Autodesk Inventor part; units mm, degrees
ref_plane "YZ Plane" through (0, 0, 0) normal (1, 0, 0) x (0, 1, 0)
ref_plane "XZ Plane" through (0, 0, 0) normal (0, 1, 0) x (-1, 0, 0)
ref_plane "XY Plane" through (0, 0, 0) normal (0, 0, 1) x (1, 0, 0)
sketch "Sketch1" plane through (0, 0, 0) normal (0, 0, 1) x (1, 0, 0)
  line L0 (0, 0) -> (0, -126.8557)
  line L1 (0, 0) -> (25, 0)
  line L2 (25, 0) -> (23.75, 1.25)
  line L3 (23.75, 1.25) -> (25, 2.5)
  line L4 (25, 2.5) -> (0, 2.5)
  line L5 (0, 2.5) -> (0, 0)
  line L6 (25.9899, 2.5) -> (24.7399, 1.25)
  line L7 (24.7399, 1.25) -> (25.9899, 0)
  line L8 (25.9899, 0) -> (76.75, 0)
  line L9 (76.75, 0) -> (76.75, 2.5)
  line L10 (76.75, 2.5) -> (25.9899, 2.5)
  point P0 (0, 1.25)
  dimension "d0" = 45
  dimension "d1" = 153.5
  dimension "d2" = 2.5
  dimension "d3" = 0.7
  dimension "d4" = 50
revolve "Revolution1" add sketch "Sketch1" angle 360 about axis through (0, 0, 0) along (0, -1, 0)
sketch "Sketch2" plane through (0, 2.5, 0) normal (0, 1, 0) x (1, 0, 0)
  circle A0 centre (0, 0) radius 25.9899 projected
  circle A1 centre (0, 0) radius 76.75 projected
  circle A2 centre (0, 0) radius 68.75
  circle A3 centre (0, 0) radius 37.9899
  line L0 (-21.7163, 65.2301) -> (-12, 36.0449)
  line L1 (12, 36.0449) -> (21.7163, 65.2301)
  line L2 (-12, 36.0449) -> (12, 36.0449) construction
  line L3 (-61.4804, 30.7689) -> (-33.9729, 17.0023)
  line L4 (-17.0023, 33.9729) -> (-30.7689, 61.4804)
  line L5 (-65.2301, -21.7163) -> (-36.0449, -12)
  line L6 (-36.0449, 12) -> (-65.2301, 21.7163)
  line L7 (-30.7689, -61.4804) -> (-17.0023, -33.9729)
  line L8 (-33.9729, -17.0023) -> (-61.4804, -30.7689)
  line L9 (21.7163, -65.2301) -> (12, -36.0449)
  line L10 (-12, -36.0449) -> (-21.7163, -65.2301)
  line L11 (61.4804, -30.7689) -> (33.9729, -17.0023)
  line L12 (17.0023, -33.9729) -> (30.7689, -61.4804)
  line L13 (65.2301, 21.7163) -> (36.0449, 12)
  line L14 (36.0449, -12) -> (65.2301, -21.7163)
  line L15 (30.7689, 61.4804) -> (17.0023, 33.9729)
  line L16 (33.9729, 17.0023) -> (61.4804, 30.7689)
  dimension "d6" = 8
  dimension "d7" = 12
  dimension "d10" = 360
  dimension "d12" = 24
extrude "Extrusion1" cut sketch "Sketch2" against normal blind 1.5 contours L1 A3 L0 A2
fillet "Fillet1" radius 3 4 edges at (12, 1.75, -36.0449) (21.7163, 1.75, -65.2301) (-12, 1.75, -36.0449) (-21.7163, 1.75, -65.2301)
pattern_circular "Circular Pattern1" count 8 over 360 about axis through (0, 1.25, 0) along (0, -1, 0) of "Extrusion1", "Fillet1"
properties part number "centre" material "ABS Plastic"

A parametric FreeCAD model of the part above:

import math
import FreeCAD as App
import Part
import Sketcher

V = App.Vector


def edges_at(feature, points):
    """Names of the edges that pass closest to the given points."""
    edges = feature.Shape.Edges
    near = lambda p: min(range(len(edges)), key=lambda i: edges[i].distToShape(Part.Vertex(*p))[0])
    return sorted({f"Edge{near(p) + 1}" for p in points})


def add_polygon(sketch, points):
    """Adds a closed chain of lines whose ends are joined by coincident constraints."""
    first, n = sketch.GeometryCount, len(points)
    for a, b in zip(points, points[1:] + points[:1]):
        sketch.addGeometry(Part.LineSegment(App.Vector(*a, 0), App.Vector(*b, 0)), False)
    for i in range(n):
        sketch.addConstraint(Sketcher.Constraint("Coincident", first + i, 2, first + (i + 1) % n, 1))

doc = App.newDocument("Part")
body = doc.addObject("PartDesign::Body", "Body")
body.AllowCompound = True

# Sketch on XY plane
sketch1 = body.newObject("Sketcher::SketchObject", "Sketch")
sketch1.AttachmentSupport = (doc.getObject("XY_Plane"), [""])
sketch1.MapMode = "FlatFace"
add_polygon(sketch1, [(0, 2.5), (0, 0), (25, 0), (23.8, 1.2), (25, 2.5)])  # lines 0-4
add_polygon(sketch1, [(76.8, 2.5), (26, 2.5), (24.7, 1.2), (26, 0), (76.8, 0)])  # lines 5-9
sketch1.addConstraint([
    Sketcher.Constraint("Vertical", 0),
    Sketcher.Constraint("Horizontal", 1),
    Sketcher.Constraint("Horizontal", 4),
    Sketcher.Constraint("Horizontal", 5),
    Sketcher.Constraint("Horizontal", 8),
    Sketcher.Constraint("Vertical", 9),
    Sketcher.Constraint("Coincident", 0, 2, -1, 1),
    Sketcher.Constraint("PointOnObject", 7, 2, -1),
    Sketcher.Constraint("Perpendicular", 2, 3),
    Sketcher.Constraint("Parallel", 3, 6),
    Sketcher.Constraint("Perpendicular", 6, 7),
    Sketcher.Constraint("Horizontal", 4, 2, 5, 2),
    Sketcher.Constraint("Horizontal", 2, 2, 6, 2),
    Sketcher.Constraint("Vertical", 1, 2, 3, 2),
    Sketcher.Constraint("Equal", 2, 3),
    Sketcher.Constraint("DistanceY", 0, 2, 0, 1, 2.5),
    Sketcher.Constraint("DistanceX", 1, 1, 1, 2, 25.0),
    Sketcher.Constraint("DistanceX", 5, 2, 5, 1, 50.76),
    Sketcher.Constraint("DistanceX", -1, 1, 5, 2, 25.99),
])
revolution = body.newObject("PartDesign::Revolution", "Revolution")
revolution.Profile = sketch1
revolution.ReferenceAxis = (sketch1, ["V_Axis"])
revolution.Angle = 360

# Sketch on XZ plane
sketch2 = body.newObject("Sketcher::SketchObject", "Sketch001")
sketch2.AttachmentSupport = (doc.getObject("XZ_Plane"), [""])
sketch2.MapMode = "FlatFace"
sketch2.AttachmentOffset = App.Placement(V(0, 0, -2.5), App.Rotation())
sketch2.addGeometry([
    Part.LineSegment(V(12, -36, 0), V(22, -65, 0)),
    Part.ArcOfCircle(Part.Circle(V(0, 0, 0), V(0, 0, 1), 69), math.radians(-108), math.radians(-72)),
    Part.LineSegment(V(-22, -65, 0), V(-12, -36, 0)),
    Part.ArcOfCircle(Part.Circle(V(0, 0, 0), V(0, 0, 1), 38), math.radians(-108), math.radians(-72)),
], False)
sketch2.addConstraint([
    Sketcher.Constraint("Coincident", 0, 2, 1, 2),
    Sketcher.Constraint("Coincident", 1, 1, 2, 1),
    Sketcher.Constraint("Coincident", 2, 2, 3, 1),
    Sketcher.Constraint("Coincident", 3, 2, 0, 1),
    Sketcher.Constraint("Coincident", 1, 3, -1, 1),
    Sketcher.Constraint("Coincident", 3, 3, -1, 1),
    Sketcher.Constraint("Horizontal", 0, 2, 1, 1),
    Sketcher.Constraint("Horizontal", 2, 2, 3, 2),
    Sketcher.Constraint("DistanceX", 2, 2, -1, 1, 12.0),
    Sketcher.Constraint("Radius", 1, 68.75),
    Sketcher.Constraint("Radius", 3, 37.99),
    Sketcher.Constraint("DistanceY", 0, 2, -1, 1, 65.23),
])
pocket1 = body.newObject("PartDesign::Pocket", "Pocket")
pocket1.Profile = sketch2
pocket1.Length = 1.5
pocket1.Reversed = True
doc.recompute()

fillet = body.newObject("PartDesign::Fillet", "Fillet")
fillet.Base = (pocket1, edges_at(pocket1, [
    (12, 1.75, -36.045),
    (21.716, 1.75, -65.23),
    (-12, 1.75, -36.045),
    (-21.716, 1.75, -65.23),
]))
fillet.Radius = 3
doc.recompute()

polarpattern = body.newObject("PartDesign::PolarPattern", "PolarPattern")
polarpattern.Originals = [pocket1, fillet]
polarpattern.Axis = (doc.getObject("Y_Axis"), [""])
polarpattern.Angle = 360
polarpattern.Occurrences = 8
body.Tip = polarpattern

doc.recompute()
